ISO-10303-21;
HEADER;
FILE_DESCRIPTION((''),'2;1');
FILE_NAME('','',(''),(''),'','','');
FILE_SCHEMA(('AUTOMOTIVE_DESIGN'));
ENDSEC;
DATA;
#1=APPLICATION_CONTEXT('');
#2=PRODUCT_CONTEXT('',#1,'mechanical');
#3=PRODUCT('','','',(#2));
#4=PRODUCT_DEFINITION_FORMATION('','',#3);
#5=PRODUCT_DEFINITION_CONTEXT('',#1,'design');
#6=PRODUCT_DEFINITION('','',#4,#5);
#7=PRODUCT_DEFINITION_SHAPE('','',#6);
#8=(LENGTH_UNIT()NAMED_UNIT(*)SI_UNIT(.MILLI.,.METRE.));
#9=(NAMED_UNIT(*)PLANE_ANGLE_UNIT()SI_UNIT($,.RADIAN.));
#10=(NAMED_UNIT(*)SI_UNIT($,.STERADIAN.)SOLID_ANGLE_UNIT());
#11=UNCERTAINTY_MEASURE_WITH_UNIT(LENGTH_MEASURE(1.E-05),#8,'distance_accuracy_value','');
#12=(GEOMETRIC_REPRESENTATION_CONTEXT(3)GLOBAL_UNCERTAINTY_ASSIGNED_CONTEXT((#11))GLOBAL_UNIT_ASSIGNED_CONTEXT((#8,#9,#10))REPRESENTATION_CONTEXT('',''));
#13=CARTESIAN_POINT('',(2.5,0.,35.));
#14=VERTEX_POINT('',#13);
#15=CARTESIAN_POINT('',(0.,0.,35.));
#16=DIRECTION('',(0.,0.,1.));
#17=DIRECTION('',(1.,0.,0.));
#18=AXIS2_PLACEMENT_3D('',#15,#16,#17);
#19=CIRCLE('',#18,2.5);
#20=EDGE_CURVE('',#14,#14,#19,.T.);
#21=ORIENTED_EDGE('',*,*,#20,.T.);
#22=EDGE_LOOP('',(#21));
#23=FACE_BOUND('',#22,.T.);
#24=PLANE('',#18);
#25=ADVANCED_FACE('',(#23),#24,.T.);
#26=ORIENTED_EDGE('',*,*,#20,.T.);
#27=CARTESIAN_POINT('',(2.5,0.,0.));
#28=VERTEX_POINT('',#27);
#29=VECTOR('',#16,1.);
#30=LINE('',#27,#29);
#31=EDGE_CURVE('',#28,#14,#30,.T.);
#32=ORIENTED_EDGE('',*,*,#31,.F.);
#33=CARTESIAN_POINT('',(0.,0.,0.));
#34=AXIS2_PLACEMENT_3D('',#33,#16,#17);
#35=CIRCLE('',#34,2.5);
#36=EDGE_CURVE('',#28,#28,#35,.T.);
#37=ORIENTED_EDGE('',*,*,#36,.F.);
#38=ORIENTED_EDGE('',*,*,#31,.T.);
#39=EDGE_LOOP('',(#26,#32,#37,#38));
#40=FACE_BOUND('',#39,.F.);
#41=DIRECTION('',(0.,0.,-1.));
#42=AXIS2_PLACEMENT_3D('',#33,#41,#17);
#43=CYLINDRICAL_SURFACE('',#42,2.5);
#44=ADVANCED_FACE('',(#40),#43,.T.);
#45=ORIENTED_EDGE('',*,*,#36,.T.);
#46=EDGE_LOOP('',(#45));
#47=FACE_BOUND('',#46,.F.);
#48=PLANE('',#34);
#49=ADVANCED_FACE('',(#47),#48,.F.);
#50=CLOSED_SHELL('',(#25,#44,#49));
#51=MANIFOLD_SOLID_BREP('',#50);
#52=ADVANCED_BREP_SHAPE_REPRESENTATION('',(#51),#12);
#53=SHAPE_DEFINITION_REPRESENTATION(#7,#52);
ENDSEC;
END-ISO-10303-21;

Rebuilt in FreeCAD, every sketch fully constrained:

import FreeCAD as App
import Part
import Sketcher
from FreeCAD import Vector
Q = App.Units.Quantity

doc = App.newDocument("Part")
params = doc.addObject("Spreadsheet::Sheet", "Params")
for row, (alias, value) in enumerate([
    ("sketch1_diameter", "5 mm"),
    ("pad1_length", "35 mm"),
], start=1):
    params.set(f"A{row}", alias)
    params.set(f"B{row}", "=" + value)
    params.setAlias(f"B{row}", alias)

body = doc.addObject("PartDesign::Body", "Body")

# Sketch on XY plane
sketch1 = body.newObject("Sketcher::SketchObject", "Sketch")
sketch1.AttachmentSupport = (doc.getObject("XY_Plane"), [""])
sketch1.MapMode = "FlatFace"
sketch1.addGeometry(Part.Circle(Vector(0, 0, 0), Vector(0, 0, 1), 2.5), False)
sketch1.addConstraint(Sketcher.Constraint("Coincident", 0, 3, -1, 1))
sketch1.addConstraint(Sketcher.Constraint("Diameter", 0, Q("5 mm")))
sketch1.setExpression("Constraints[1]", "Params.sketch1_diameter")
pad1 = body.newObject("PartDesign::Pad", "Pad")
pad1.Profile = sketch1
pad1.setExpression("Length", "Params.pad1_length")

doc.recompute()
